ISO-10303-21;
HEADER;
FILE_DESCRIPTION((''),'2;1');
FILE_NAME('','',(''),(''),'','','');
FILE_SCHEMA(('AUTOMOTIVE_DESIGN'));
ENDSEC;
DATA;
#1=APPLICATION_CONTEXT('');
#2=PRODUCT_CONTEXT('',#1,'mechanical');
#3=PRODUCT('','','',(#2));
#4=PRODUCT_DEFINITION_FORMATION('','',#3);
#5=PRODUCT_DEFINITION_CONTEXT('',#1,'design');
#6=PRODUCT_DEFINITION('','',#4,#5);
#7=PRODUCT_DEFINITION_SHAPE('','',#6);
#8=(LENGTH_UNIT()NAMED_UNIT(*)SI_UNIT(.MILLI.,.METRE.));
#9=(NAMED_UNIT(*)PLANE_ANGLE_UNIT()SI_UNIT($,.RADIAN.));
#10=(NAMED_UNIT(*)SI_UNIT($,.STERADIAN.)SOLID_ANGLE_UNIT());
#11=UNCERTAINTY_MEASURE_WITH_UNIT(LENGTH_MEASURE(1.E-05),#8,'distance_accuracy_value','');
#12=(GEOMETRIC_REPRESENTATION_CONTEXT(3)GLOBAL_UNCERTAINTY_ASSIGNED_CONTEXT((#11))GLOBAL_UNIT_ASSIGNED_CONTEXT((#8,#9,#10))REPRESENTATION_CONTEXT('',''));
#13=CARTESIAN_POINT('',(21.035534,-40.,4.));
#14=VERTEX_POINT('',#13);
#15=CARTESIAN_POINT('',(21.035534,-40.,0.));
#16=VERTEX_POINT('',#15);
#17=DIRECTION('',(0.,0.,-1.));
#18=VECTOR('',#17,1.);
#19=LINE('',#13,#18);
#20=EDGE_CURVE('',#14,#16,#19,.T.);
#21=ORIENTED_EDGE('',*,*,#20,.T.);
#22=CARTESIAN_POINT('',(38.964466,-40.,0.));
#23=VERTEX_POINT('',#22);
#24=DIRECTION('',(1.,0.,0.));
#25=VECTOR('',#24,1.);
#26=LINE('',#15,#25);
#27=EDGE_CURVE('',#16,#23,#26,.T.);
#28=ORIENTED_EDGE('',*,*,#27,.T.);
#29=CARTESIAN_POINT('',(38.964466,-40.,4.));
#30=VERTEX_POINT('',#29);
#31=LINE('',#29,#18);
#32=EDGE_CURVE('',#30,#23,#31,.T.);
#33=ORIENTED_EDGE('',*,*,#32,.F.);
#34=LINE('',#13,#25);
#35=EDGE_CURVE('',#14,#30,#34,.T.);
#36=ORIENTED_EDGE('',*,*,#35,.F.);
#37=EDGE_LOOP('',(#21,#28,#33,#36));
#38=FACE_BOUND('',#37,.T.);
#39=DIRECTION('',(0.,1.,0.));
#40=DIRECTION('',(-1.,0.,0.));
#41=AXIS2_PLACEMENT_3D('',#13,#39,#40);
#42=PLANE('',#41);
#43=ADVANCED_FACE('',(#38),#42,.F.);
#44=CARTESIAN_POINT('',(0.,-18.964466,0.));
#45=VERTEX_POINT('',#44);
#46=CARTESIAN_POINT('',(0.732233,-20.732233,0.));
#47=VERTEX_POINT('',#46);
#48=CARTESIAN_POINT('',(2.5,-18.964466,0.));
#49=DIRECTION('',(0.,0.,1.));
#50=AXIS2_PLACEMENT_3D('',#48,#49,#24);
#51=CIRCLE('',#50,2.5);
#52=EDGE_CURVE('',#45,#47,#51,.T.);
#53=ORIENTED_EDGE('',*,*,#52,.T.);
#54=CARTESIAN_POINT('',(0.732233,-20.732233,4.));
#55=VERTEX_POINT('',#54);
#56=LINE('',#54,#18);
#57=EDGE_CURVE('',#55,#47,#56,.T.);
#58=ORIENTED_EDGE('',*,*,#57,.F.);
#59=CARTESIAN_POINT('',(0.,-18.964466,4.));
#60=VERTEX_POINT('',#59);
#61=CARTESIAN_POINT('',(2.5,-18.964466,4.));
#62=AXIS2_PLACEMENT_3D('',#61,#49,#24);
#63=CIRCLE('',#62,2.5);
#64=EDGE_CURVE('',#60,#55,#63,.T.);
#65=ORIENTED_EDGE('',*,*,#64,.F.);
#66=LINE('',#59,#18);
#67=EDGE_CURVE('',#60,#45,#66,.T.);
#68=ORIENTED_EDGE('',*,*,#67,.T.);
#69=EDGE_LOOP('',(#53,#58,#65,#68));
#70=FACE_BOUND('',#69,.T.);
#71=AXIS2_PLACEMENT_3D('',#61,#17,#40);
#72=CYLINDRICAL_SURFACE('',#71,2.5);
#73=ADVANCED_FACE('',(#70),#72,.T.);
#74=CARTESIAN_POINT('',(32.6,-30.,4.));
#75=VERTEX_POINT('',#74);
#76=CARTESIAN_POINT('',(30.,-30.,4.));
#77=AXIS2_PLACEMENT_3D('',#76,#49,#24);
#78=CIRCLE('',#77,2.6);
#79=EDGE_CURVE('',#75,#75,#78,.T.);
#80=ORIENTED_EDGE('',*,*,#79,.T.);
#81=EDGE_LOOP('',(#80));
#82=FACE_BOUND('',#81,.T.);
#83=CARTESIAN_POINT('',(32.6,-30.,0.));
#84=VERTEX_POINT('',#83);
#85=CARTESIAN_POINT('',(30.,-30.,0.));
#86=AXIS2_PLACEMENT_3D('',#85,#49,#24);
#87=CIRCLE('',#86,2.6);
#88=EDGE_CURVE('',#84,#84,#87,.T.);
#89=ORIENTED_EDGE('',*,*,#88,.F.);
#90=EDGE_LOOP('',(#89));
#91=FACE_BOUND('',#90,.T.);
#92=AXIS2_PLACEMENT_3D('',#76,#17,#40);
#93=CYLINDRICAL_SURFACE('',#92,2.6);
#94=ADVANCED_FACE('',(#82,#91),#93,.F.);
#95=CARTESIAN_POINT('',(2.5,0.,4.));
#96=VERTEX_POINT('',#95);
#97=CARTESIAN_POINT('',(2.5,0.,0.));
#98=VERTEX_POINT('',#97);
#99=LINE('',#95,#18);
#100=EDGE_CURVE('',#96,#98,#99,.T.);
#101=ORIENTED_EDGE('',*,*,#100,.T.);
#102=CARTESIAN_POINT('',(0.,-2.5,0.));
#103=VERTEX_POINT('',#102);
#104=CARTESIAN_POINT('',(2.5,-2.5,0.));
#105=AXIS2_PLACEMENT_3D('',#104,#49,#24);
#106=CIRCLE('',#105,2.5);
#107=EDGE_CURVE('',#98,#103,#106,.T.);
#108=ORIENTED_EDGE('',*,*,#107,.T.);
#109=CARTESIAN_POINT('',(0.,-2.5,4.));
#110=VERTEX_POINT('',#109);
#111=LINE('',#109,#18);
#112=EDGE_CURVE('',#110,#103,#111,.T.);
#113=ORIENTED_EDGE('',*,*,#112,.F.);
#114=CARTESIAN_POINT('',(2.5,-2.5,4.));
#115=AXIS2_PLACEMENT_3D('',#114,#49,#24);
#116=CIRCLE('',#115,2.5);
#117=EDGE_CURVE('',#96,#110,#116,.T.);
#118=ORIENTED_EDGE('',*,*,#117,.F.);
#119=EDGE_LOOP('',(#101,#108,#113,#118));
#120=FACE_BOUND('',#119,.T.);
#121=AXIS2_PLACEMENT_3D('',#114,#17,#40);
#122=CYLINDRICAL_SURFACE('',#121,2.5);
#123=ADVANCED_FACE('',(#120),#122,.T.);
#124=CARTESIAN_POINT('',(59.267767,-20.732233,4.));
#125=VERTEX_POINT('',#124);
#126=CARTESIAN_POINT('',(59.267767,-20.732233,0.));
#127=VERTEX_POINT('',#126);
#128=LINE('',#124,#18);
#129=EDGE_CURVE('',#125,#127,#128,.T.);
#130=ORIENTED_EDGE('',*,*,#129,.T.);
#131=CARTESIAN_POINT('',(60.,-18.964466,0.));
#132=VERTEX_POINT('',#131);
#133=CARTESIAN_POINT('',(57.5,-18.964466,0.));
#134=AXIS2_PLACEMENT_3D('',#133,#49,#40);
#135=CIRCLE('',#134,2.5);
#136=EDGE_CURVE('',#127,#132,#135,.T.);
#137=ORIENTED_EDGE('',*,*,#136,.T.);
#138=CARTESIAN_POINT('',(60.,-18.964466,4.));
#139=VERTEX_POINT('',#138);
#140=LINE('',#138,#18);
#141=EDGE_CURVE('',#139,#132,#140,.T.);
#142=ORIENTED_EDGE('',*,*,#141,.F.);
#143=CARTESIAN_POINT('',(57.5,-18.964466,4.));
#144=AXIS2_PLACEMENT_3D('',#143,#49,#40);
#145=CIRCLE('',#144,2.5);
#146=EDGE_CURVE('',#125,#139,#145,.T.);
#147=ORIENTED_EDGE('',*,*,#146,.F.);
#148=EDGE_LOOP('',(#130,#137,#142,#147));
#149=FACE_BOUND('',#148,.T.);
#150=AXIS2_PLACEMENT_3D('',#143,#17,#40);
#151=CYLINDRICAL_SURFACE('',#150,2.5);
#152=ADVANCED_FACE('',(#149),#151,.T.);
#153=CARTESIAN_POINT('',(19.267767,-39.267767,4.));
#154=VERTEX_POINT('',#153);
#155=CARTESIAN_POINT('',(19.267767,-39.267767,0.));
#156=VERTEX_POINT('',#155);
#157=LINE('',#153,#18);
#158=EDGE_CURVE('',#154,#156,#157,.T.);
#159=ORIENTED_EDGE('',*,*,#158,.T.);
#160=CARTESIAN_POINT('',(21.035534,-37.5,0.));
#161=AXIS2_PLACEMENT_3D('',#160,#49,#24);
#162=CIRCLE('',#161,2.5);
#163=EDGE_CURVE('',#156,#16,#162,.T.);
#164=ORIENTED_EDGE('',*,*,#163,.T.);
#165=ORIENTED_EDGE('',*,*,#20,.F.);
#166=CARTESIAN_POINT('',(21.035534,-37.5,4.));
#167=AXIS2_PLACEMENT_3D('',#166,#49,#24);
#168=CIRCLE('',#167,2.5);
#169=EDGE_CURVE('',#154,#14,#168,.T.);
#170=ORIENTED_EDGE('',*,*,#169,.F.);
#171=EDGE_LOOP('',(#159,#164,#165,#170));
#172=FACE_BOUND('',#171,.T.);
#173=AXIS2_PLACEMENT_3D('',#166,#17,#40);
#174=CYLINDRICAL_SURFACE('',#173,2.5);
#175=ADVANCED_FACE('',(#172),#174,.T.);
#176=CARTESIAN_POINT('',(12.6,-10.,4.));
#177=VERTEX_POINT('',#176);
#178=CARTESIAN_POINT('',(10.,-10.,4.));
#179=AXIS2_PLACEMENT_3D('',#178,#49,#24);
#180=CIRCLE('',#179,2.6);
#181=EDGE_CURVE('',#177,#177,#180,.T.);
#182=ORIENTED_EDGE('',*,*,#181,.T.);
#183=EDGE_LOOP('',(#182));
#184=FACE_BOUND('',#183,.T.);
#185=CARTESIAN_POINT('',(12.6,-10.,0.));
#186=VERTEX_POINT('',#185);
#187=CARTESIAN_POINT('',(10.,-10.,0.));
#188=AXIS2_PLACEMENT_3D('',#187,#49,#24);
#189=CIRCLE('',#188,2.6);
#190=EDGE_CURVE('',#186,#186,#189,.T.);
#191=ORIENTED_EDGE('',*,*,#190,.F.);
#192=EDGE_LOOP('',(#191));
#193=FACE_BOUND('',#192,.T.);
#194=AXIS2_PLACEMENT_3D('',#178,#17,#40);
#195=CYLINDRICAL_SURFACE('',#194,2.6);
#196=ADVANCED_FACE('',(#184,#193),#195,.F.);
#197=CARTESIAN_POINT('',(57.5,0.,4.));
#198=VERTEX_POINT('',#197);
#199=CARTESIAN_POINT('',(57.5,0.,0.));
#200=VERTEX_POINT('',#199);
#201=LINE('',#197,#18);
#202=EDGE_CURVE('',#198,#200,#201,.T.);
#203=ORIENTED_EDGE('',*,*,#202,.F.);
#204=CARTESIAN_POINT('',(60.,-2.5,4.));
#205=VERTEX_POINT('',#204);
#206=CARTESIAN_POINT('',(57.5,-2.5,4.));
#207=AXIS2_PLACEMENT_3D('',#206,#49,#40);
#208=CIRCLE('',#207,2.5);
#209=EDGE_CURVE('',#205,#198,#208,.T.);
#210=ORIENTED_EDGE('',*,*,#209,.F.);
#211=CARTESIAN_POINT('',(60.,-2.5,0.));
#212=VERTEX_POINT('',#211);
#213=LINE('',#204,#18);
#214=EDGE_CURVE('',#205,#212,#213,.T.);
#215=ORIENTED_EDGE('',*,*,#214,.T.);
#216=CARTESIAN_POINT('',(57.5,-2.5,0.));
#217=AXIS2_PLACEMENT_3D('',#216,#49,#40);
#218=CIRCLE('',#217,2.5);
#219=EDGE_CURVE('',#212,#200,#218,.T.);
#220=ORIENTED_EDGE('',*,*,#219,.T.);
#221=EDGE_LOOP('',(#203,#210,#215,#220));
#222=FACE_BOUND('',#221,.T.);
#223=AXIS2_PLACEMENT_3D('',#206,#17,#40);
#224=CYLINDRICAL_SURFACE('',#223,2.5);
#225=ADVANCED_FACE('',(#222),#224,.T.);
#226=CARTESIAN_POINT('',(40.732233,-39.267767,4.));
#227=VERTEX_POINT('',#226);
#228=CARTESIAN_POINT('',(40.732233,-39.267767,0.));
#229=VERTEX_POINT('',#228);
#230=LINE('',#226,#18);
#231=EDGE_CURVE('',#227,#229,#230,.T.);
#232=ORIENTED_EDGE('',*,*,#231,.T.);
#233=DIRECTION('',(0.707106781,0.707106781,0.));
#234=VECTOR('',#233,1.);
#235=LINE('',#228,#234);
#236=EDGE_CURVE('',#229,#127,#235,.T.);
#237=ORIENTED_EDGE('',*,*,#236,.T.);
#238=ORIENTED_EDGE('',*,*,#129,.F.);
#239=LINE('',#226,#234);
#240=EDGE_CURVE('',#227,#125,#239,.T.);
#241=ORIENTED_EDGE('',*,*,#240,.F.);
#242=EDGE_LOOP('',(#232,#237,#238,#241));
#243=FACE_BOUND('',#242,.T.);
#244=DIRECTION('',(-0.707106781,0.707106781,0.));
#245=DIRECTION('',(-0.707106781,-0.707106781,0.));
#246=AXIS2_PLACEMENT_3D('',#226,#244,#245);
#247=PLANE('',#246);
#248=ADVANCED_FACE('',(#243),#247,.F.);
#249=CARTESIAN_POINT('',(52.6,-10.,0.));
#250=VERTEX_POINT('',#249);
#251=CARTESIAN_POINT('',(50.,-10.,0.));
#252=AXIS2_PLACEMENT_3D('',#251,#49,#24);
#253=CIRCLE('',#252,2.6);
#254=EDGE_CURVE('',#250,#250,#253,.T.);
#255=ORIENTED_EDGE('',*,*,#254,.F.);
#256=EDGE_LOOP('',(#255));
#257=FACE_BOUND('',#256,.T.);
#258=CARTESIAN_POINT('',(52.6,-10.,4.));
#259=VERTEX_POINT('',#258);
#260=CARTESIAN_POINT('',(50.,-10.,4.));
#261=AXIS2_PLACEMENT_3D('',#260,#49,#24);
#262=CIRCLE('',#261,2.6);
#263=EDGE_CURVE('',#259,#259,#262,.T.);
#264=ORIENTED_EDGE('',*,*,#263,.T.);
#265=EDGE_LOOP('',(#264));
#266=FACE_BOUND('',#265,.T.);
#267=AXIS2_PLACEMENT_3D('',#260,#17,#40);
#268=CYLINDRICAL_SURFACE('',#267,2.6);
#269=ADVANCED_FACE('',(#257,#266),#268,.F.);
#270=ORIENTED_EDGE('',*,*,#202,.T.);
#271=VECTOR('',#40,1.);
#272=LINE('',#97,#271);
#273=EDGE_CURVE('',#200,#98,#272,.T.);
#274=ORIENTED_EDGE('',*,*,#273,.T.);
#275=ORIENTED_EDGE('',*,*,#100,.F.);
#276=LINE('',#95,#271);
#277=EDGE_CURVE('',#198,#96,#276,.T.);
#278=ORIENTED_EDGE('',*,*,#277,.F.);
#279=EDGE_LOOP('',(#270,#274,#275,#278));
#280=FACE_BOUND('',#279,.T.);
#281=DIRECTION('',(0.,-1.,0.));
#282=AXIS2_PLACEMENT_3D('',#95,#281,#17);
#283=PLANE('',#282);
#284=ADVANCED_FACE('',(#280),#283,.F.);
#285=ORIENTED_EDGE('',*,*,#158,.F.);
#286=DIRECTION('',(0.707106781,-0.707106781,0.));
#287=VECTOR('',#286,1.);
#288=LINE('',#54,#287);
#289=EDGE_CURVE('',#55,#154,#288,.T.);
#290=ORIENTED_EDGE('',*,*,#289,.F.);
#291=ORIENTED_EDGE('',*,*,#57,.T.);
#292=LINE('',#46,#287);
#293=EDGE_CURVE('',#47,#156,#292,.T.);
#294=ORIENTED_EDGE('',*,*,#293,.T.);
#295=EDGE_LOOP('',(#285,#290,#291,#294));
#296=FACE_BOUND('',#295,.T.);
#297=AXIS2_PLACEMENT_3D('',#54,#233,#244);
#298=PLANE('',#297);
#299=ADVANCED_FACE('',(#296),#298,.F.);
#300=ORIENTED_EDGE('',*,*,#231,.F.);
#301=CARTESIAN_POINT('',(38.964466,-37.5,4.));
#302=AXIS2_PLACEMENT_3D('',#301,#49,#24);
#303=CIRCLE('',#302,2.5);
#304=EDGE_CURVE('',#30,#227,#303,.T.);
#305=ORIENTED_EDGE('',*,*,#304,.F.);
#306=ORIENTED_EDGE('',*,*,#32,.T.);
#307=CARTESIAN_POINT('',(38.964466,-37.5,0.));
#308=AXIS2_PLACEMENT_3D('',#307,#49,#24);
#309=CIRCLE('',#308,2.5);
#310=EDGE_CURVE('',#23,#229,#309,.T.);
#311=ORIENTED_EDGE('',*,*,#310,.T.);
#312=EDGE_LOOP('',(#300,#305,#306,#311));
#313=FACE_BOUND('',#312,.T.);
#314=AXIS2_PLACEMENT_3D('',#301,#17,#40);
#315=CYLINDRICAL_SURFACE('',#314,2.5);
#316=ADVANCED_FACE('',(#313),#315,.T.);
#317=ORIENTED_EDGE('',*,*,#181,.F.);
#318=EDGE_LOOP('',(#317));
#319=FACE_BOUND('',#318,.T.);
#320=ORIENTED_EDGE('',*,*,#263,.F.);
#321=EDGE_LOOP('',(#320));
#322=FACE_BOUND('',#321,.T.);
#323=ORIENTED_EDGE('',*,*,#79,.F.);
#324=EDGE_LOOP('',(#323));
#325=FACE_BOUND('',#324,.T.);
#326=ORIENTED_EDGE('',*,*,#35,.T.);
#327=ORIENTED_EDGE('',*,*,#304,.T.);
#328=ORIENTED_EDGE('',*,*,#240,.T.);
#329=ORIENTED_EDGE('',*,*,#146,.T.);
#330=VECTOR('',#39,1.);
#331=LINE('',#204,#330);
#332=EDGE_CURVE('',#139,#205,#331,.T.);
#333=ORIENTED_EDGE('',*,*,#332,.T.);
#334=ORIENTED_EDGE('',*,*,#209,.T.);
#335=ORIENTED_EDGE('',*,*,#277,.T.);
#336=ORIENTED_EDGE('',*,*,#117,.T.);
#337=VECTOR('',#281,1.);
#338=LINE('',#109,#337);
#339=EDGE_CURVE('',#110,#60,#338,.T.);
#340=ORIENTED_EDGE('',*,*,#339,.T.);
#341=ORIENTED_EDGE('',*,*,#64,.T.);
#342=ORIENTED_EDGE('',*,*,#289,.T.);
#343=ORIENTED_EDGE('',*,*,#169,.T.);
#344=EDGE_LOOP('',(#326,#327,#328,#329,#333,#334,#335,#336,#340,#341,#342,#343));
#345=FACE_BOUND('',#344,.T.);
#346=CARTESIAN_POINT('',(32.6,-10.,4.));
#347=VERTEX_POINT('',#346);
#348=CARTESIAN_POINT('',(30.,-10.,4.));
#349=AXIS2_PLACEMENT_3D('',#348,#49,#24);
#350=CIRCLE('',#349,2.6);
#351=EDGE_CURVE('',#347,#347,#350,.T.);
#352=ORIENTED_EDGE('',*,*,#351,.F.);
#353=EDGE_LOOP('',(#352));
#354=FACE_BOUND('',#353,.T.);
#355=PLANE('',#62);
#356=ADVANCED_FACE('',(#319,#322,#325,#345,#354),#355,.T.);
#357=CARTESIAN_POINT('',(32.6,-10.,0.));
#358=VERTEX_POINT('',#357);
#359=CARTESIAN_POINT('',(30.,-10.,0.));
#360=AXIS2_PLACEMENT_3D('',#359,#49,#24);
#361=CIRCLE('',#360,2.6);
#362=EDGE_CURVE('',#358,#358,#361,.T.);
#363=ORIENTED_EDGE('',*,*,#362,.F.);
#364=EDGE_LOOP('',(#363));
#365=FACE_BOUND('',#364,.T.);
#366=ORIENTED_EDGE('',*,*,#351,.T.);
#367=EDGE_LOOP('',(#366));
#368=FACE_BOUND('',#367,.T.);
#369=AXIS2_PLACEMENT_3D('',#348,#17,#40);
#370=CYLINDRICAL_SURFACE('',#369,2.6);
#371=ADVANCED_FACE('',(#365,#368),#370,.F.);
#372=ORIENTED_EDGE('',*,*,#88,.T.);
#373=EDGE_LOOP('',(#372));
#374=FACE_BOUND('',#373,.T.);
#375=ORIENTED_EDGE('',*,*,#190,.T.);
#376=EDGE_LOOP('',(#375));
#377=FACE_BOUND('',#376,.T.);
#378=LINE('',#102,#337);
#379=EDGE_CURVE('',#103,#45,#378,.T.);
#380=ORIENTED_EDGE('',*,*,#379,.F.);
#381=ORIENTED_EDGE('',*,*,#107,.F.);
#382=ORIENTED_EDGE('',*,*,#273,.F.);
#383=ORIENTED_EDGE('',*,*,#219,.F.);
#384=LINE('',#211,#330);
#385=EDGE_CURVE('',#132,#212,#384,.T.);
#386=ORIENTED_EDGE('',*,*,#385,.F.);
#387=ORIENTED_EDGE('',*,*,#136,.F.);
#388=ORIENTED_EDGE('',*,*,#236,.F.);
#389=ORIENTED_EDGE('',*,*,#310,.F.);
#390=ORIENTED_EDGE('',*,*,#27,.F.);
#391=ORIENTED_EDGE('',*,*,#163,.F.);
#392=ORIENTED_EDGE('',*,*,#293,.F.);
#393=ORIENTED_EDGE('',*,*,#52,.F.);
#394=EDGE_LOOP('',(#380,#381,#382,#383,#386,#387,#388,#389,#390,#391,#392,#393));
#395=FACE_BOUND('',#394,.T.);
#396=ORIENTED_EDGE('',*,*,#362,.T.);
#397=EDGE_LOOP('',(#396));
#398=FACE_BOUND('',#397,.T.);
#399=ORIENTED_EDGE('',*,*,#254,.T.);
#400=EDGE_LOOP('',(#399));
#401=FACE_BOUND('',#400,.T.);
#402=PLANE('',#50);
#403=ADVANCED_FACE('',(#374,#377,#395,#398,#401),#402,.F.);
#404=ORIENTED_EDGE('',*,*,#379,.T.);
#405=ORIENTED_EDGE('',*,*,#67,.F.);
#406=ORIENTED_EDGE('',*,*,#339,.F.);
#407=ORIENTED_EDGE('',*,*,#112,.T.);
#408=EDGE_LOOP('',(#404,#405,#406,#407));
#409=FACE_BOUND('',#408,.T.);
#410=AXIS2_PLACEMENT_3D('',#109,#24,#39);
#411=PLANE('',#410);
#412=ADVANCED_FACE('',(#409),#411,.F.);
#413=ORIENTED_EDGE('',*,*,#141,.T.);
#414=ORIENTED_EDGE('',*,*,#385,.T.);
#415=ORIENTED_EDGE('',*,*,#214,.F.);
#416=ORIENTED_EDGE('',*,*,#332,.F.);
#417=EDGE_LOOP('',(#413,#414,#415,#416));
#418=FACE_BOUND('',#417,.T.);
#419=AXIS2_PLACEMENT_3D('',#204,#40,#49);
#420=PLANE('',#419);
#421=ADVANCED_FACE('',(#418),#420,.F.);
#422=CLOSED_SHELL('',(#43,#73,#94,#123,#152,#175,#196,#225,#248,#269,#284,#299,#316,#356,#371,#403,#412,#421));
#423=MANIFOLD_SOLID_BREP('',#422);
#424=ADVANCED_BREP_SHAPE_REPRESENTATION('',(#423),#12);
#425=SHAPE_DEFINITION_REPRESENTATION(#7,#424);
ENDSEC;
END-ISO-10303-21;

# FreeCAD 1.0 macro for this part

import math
import FreeCAD as App
import Part
import Sketcher

V = App.Vector
Q = App.Units.Quantity

doc = App.newDocument("Part")
body = doc.addObject("PartDesign::Body", "Body")

# Sketch on XY plane
sketch1 = body.newObject("Sketcher::SketchObject", "Sketch")
sketch1.AttachmentSupport = (doc.getObject("XY_Plane"), [""])
sketch1.MapMode = "FlatFace"
sketch1.addGeometry([
    Part.LineSegment(V(57.5, 0, 0), V(2.5, 0, 0)),  # 0
    Part.ArcOfCircle(Part.Circle(V(2.5, -2.5, 0), V(0, 0, 1), 2.5), math.radians(90), math.radians(180)),  # 1
    Part.LineSegment(V(0, -2.5, 0), V(0, -18.964466, 0)),  # 2
    Part.ArcOfCircle(Part.Circle(V(2.5, -18.964466, 0), V(0, 0, 1), 2.5), math.radians(-180), math.radians(-135)),  # 3
    Part.LineSegment(V(0.732233, -20.732233, 0), V(19.267767, -39.267767, 0)),  # 4
    Part.ArcOfCircle(Part.Circle(V(21.035534, -37.5, 0), V(0, 0, 1), 2.5), math.radians(-135), math.radians(-90)),  # 5
    Part.LineSegment(V(21.035534, -40, 0), V(38.964466, -40, 0)),  # 6
    Part.ArcOfCircle(Part.Circle(V(38.964466, -37.5, 0), V(0, 0, 1), 2.5), math.radians(-90), math.radians(-45)),  # 7
    Part.LineSegment(V(40.732233, -39.267767, 0), V(59.267767, -20.732233, 0)),  # 8
    Part.ArcOfCircle(Part.Circle(V(57.5, -18.964466, 0), V(0, 0, 1), 2.5), math.radians(-45), math.radians(0)),  # 9
    Part.LineSegment(V(60, -18.964466, 0), V(60, -2.5, 0)),  # 10
    Part.ArcOfCircle(Part.Circle(V(57.5, -2.5, 0), V(0, 0, 1), 2.5), math.radians(0), math.radians(90)),  # 11
    Part.Circle(V(30, -30, 0), V(0, 0, 1), 2.6),  # 12
    Part.Circle(V(50, -10, 0), V(0, 0, 1), 2.6),  # 13
    Part.Circle(V(30, -10, 0), V(0, 0, 1), 2.6),  # 14
    Part.Circle(V(10, -10, 0), V(0, 0, 1), 2.6),  # 15
], False)
sketch1.addConstraint([
    Sketcher.Constraint("Tangent", 0, 2, 1, 1),
    Sketcher.Constraint("Tangent", 1, 2, 2, 1),
    Sketcher.Constraint("Tangent", 2, 2, 3, 1),
    Sketcher.Constraint("Tangent", 3, 2, 4, 1),
    Sketcher.Constraint("Tangent", 4, 2, 5, 1),
    Sketcher.Constraint("Tangent", 5, 2, 6, 1),
    Sketcher.Constraint("Tangent", 6, 2, 7, 1),
    Sketcher.Constraint("Tangent", 7, 2, 8, 1),
    Sketcher.Constraint("Tangent", 8, 2, 9, 1),
    Sketcher.Constraint("Tangent", 9, 2, 10, 1),
    Sketcher.Constraint("Tangent", 10, 2, 11, 1),
    Sketcher.Constraint("Tangent", 11, 2, 0, 1),
    Sketcher.Constraint("Horizontal", 0),
    Sketcher.Constraint("Vertical", 2),
    Sketcher.Constraint("Horizontal", 6),
    Sketcher.Constraint("Vertical", 10),
    Sketcher.Constraint("Equal", 1, 3),
    Sketcher.Constraint("Equal", 3, 5),
    Sketcher.Constraint("Equal", 5, 7),
    Sketcher.Constraint("Equal", 7, 9),
    Sketcher.Constraint("Equal", 9, 11),
    Sketcher.Constraint("Equal", 12, 13),
    Sketcher.Constraint("Equal", 13, 14),
    Sketcher.Constraint("Equal", 14, 15),
    Sketcher.Constraint("PointOnObject", 0, 2, -1),
    Sketcher.Constraint("PointOnObject", 1, 2, -2),
    Sketcher.Constraint("Perpendicular", 4, 8),
    Sketcher.Constraint("Horizontal", 3, 3, 9, 3),
    Sketcher.Constraint("Horizontal", 13, 3, 14, 3),
    Sketcher.Constraint("Horizontal", 14, 3, 15, 3),
    Sketcher.Constraint("Horizontal", 4, 2, 7, 2),
    Sketcher.Constraint("Vertical", 12, 3, 14, 3),
    Sketcher.Constraint("Diameter", 12, Q("5.2 mm")),
    Sketcher.Constraint("Radius", 1, Q("2.5 mm")),
    Sketcher.Constraint("DistanceX", 0, 2, 0, 1, Q("55 mm")),
    Sketcher.Constraint("DistanceX", -1, 1, 12, 3, Q("30 mm")),
    Sketcher.Constraint("DistanceY", 12, 3, -1, 1, Q("30 mm")),
    Sketcher.Constraint("DistanceX", -1, 1, 13, 3, Q("50 mm")),
    Sketcher.Constraint("DistanceY", 13, 3, -1, 1, Q("10 mm")),
    Sketcher.Constraint("DistanceX", -1, 1, 15, 3, Q("10 mm")),
    Sketcher.Constraint("DistanceY", 5, 2, -1, 1, Q("40 mm")),
    Sketcher.Constraint("DistanceX", 4, 2, 7, 3, Q("19.696699 mm")),
])
pad1 = body.newObject("PartDesign::Pad", "Pad")
pad1.Profile = sketch1
pad1.Length = 4

doc.recompute()
